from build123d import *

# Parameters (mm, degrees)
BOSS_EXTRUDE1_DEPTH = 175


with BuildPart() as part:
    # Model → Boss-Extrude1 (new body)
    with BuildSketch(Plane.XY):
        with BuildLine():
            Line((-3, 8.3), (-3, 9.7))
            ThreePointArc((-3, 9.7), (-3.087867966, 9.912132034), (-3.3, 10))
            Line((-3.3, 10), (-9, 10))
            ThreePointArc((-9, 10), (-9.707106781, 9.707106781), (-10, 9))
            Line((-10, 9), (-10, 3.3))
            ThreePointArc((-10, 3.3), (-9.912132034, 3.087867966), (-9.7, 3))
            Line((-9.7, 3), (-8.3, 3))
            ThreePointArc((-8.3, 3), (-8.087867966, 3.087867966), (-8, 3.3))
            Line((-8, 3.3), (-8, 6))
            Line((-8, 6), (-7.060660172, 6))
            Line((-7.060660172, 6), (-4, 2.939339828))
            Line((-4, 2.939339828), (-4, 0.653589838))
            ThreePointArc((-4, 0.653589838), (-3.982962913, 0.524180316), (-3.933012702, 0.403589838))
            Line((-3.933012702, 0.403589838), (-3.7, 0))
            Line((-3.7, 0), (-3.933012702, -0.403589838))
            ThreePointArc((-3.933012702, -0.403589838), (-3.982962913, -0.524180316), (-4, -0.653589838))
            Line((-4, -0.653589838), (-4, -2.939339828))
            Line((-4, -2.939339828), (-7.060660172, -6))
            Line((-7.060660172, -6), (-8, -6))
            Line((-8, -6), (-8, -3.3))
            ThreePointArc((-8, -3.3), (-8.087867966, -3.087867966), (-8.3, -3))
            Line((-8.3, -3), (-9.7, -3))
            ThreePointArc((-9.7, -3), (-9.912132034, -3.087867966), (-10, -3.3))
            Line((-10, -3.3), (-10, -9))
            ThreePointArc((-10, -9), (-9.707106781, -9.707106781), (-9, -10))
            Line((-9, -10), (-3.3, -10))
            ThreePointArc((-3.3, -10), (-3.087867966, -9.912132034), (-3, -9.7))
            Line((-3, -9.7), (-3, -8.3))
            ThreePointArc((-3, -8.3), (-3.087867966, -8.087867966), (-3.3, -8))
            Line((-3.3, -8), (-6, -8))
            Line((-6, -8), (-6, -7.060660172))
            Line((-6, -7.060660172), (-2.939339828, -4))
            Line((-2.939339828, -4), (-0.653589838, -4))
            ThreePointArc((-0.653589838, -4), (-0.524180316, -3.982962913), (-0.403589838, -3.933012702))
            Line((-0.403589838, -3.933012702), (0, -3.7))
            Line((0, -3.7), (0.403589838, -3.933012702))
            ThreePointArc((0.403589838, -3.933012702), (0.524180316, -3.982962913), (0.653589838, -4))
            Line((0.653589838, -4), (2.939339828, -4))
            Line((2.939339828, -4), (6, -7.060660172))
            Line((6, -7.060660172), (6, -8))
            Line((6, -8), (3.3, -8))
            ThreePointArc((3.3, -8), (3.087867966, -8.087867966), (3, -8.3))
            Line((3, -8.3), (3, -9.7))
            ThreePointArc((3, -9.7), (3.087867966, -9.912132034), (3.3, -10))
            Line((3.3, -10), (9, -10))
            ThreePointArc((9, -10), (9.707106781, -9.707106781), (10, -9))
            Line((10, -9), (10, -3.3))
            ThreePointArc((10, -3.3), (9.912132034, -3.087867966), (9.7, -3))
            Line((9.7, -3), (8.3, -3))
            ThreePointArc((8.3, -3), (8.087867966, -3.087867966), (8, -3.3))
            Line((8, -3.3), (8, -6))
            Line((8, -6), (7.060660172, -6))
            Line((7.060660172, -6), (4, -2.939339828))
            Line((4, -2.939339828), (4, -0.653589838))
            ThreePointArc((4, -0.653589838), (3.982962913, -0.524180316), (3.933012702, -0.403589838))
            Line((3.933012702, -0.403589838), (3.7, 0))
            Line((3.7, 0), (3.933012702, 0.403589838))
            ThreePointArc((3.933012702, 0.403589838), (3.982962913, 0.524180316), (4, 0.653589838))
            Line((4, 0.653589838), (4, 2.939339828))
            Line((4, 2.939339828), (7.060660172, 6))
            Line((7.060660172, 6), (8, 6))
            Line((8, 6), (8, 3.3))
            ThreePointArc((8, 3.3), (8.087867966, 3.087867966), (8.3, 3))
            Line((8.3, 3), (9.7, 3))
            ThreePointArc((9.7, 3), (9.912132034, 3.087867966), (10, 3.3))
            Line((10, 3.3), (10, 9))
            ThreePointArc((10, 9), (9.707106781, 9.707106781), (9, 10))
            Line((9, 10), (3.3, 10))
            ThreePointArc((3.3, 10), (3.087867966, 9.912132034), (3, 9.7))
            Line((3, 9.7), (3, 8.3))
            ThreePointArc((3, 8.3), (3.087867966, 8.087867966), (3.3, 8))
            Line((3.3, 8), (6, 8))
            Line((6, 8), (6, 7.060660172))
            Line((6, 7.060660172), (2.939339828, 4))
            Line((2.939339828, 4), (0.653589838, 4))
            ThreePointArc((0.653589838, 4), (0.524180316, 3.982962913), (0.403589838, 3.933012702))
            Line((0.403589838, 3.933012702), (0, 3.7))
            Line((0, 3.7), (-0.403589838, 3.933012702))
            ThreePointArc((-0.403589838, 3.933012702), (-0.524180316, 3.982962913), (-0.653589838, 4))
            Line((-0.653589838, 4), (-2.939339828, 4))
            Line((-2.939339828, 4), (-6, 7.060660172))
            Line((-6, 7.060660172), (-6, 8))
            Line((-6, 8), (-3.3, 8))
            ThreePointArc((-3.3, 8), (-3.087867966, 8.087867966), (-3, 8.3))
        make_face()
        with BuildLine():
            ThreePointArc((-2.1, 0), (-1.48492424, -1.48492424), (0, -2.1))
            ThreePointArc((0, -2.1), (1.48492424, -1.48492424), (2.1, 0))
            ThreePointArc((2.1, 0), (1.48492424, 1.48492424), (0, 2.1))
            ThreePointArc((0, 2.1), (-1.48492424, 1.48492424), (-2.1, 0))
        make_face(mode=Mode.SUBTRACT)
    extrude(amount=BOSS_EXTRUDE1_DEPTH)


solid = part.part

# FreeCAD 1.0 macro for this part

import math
import FreeCAD as App
import Part
import Sketcher
Q = App.Units.Quantity

doc = App.newDocument("Part")
params = doc.addObject("Spreadsheet::Sheet", "Params")
for row, (alias, value) in enumerate([
    ("sketch1_radius", "1 mm"),
    ("sketch1_radius2", "0.3 mm"),
    ("sketch1_radius3", "0.5 mm"),
    ("sketch1_radius4", "2.1 mm"),
    ("sketch1_width", "5.7 mm"),
    ("pad1_length", "175 mm"),
], start=1):
    params.set(f"A{row}", alias)
    params.set(f"B{row}", "=" + value)
    params.setAlias(f"B{row}", alias)

body = doc.addObject("PartDesign::Body", "Body")

# Sketch on XY plane
sketch1 = doc.addObject("Sketcher::SketchObject", "Sketch")
body.addObject(sketch1)
sketch1.AttachmentSupport = (doc.XY_Plane, [""])
sketch1.MapMode = "FlatFace"
sketch1.addGeometry([
    Part.LineSegment(App.Vector(-3, 8.3, 0), App.Vector(-3, 9.7, 0)),  # 0
    Part.ArcOfCircle(Part.Circle(App.Vector(-3.3, 9.7, 0), App.Vector(0, 0, 1), 0.3), math.radians(0), math.radians(90)),  # 1
    Part.LineSegment(App.Vector(-3.3, 10, 0), App.Vector(-9, 10, 0)),  # 2
    Part.ArcOfCircle(Part.Circle(App.Vector(-9, 9, 0), App.Vector(0, 0, 1), 1), math.radians(90), math.radians(180)),  # 3
    Part.LineSegment(App.Vector(-10, 9, 0), App.Vector(-10, 3.3, 0)),  # 4
    Part.ArcOfCircle(Part.Circle(App.Vector(-9.7, 3.3, 0), App.Vector(0, 0, 1), 0.3), math.radians(-180), math.radians(-90)),  # 5
    Part.LineSegment(App.Vector(-9.7, 3, 0), App.Vector(-8.3, 3, 0)),  # 6
    Part.ArcOfCircle(Part.Circle(App.Vector(-8.3, 3.3, 0), App.Vector(0, 0, 1), 0.3), math.radians(-90), math.radians(0)),  # 7
    Part.LineSegment(App.Vector(-8, 3.3, 0), App.Vector(-8, 6, 0)),  # 8
    Part.LineSegment(App.Vector(-8, 6, 0), App.Vector(-7.06, 6, 0)),  # 9
    Part.LineSegment(App.Vector(-7.06, 6, 0), App.Vector(-4, 2.94, 0)),  # 10
    Part.LineSegment(App.Vector(-4, 2.94, 0), App.Vector(-4, 0.65, 0)),  # 11
    Part.ArcOfCircle(Part.Circle(App.Vector(-3.5, 0.65, 0), App.Vector(0, 0, 1), 0.5), math.radians(-180), math.radians(-150)),  # 12
    Part.LineSegment(App.Vector(-3.93, 0.4, 0), App.Vector(-3.7, 0, 0)),  # 13
    Part.LineSegment(App.Vector(-3.7, 0, 0), App.Vector(-3.93, -0.4, 0)),  # 14
    Part.ArcOfCircle(Part.Circle(App.Vector(-3.5, -0.65, 0), App.Vector(0, 0, 1), 0.5), math.radians(150), math.radians(180)),  # 15
    Part.LineSegment(App.Vector(-4, -0.65, 0), App.Vector(-4, -2.94, 0)),  # 16
    Part.LineSegment(App.Vector(-4, -2.94, 0), App.Vector(-7.06, -6, 0)),  # 17
    Part.LineSegment(App.Vector(-7.06, -6, 0), App.Vector(-8, -6, 0)),  # 18
    Part.LineSegment(App.Vector(-8, -6, 0), App.Vector(-8, -3.3, 0)),  # 19
    Part.ArcOfCircle(Part.Circle(App.Vector(-8.3, -3.3, 0), App.Vector(0, 0, 1), 0.3), math.radians(0), math.radians(90)),  # 20
    Part.LineSegment(App.Vector(-8.3, -3, 0), App.Vector(-9.7, -3, 0)),  # 21
    Part.ArcOfCircle(Part.Circle(App.Vector(-9.7, -3.3, 0), App.Vector(0, 0, 1), 0.3), math.radians(90), math.radians(180)),  # 22
    Part.LineSegment(App.Vector(-10, -3.3, 0), App.Vector(-10, -9, 0)),  # 23
    Part.ArcOfCircle(Part.Circle(App.Vector(-9, -9, 0), App.Vector(0, 0, 1), 1), math.radians(-180), math.radians(-90)),  # 24
    Part.LineSegment(App.Vector(-9, -10, 0), App.Vector(-3.3, -10, 0)),  # 25
    Part.ArcOfCircle(Part.Circle(App.Vector(-3.3, -9.7, 0), App.Vector(0, 0, 1), 0.3), math.radians(-90), math.radians(0)),  # 26
    Part.LineSegment(App.Vector(-3, -9.7, 0), App.Vector(-3, -8.3, 0)),  # 27
    Part.ArcOfCircle(Part.Circle(App.Vector(-3.3, -8.3, 0), App.Vector(0, 0, 1), 0.3), math.radians(0), math.radians(90)),  # 28
    Part.LineSegment(App.Vector(-3.3, -8, 0), App.Vector(-6, -8, 0)),  # 29
    Part.LineSegment(App.Vector(-6, -8, 0), App.Vector(-6, -7.06, 0)),  # 30
    Part.LineSegment(App.Vector(-6, -7.06, 0), App.Vector(-2.94, -4, 0)),  # 31
    Part.LineSegment(App.Vector(-2.94, -4, 0), App.Vector(-0.65, -4, 0)),  # 32
    Part.ArcOfCircle(Part.Circle(App.Vector(-0.65, -3.5, 0), App.Vector(0, 0, 1), 0.5), math.radians(-90), math.radians(-60)),  # 33
    Part.LineSegment(App.Vector(-0.4, -3.93, 0), App.Vector(0, -3.7, 0)),  # 34
    Part.LineSegment(App.Vector(0, -3.7, 0), App.Vector(0.4, -3.93, 0)),  # 35
    Part.ArcOfCircle(Part.Circle(App.Vector(0.65, -3.5, 0), App.Vector(0, 0, 1), 0.5), math.radians(-120), math.radians(-90)),  # 36
    Part.LineSegment(App.Vector(0.65, -4, 0), App.Vector(2.94, -4, 0)),  # 37
    Part.LineSegment(App.Vector(2.94, -4, 0), App.Vector(6, -7.06, 0)),  # 38
    Part.LineSegment(App.Vector(6, -7.06, 0), App.Vector(6, -8, 0)),  # 39
    Part.LineSegment(App.Vector(6, -8, 0), App.Vector(3.3, -8, 0)),  # 40
    Part.ArcOfCircle(Part.Circle(App.Vector(3.3, -8.3, 0), App.Vector(0, 0, 1), 0.3), math.radians(90), math.radians(180)),  # 41
    Part.LineSegment(App.Vector(3, -8.3, 0), App.Vector(3, -9.7, 0)),  # 42
    Part.ArcOfCircle(Part.Circle(App.Vector(3.3, -9.7, 0), App.Vector(0, 0, 1), 0.3), math.radians(-180), math.radians(-90)),  # 43
    Part.LineSegment(App.Vector(3.3, -10, 0), App.Vector(9, -10, 0)),  # 44
    Part.ArcOfCircle(Part.Circle(App.Vector(9, -9, 0), App.Vector(0, 0, 1), 1), math.radians(-90), math.radians(0)),  # 45
    Part.LineSegment(App.Vector(10, -9, 0), App.Vector(10, -3.3, 0)),  # 46
    Part.ArcOfCircle(Part.Circle(App.Vector(9.7, -3.3, 0), App.Vector(0, 0, 1), 0.3), math.radians(0), math.radians(90)),  # 47
    Part.LineSegment(App.Vector(9.7, -3, 0), App.Vector(8.3, -3, 0)),  # 48
    Part.ArcOfCircle(Part.Circle(App.Vector(8.3, -3.3, 0), App.Vector(0, 0, 1), 0.3), math.radians(90), math.radians(180)),  # 49
    Part.LineSegment(App.Vector(8, -3.3, 0), App.Vector(8, -6, 0)),  # 50
    Part.LineSegment(App.Vector(8, -6, 0), App.Vector(7.06, -6, 0)),  # 51
    Part.LineSegment(App.Vector(7.06, -6, 0), App.Vector(4, -2.94, 0)),  # 52
    Part.LineSegment(App.Vector(4, -2.94, 0), App.Vector(4, -0.65, 0)),  # 53
    Part.ArcOfCircle(Part.Circle(App.Vector(3.5, -0.65, 0), App.Vector(0, 0, 1), 0.5), math.radians(0), math.radians(30)),  # 54
    Part.LineSegment(App.Vector(3.93, -0.4, 0), App.Vector(3.7, 0, 0)),  # 55
    Part.LineSegment(App.Vector(3.7, 0, 0), App.Vector(3.93, 0.4, 0)),  # 56
    Part.ArcOfCircle(Part.Circle(App.Vector(3.5, 0.65, 0), App.Vector(0, 0, 1), 0.5), math.radians(-30), math.radians(0)),  # 57
    Part.LineSegment(App.Vector(4, 0.65, 0), App.Vector(4, 2.94, 0)),  # 58
    Part.LineSegment(App.Vector(4, 2.94, 0), App.Vector(7.06, 6, 0)),  # 59
    Part.LineSegment(App.Vector(7.06, 6, 0), App.Vector(8, 6, 0)),  # 60
    Part.LineSegment(App.Vector(8, 6, 0), App.Vector(8, 3.3, 0)),  # 61
    Part.ArcOfCircle(Part.Circle(App.Vector(8.3, 3.3, 0), App.Vector(0, 0, 1), 0.3), math.radians(-180), math.radians(-90)),  # 62
    Part.LineSegment(App.Vector(8.3, 3, 0), App.Vector(9.7, 3, 0)),  # 63
    Part.ArcOfCircle(Part.Circle(App.Vector(9.7, 3.3, 0), App.Vector(0, 0, 1), 0.3), math.radians(-90), math.radians(0)),  # 64
    Part.LineSegment(App.Vector(10, 3.3, 0), App.Vector(10, 9, 0)),  # 65
    Part.ArcOfCircle(Part.Circle(App.Vector(9, 9, 0), App.Vector(0, 0, 1), 1), math.radians(0), math.radians(90)),  # 66
    Part.LineSegment(App.Vector(9, 10, 0), App.Vector(3.3, 10, 0)),  # 67
    Part.ArcOfCircle(Part.Circle(App.Vector(3.3, 9.7, 0), App.Vector(0, 0, 1), 0.3), math.radians(90), math.radians(180)),  # 68
    Part.LineSegment(App.Vector(3, 9.7, 0), App.Vector(3, 8.3, 0)),  # 69
    Part.ArcOfCircle(Part.Circle(App.Vector(3.3, 8.3, 0), App.Vector(0, 0, 1), 0.3), math.radians(-180), math.radians(-90)),  # 70
    Part.LineSegment(App.Vector(3.3, 8, 0), App.Vector(6, 8, 0)),  # 71
    Part.LineSegment(App.Vector(6, 8, 0), App.Vector(6, 7.06, 0)),  # 72
    Part.LineSegment(App.Vector(6, 7.06, 0), App.Vector(2.94, 4, 0)),  # 73
    Part.LineSegment(App.Vector(2.94, 4, 0), App.Vector(0.65, 4, 0)),  # 74
    Part.ArcOfCircle(Part.Circle(App.Vector(0.65, 3.5, 0), App.Vector(0, 0, 1), 0.5), math.radians(90), math.radians(120)),  # 75
    Part.LineSegment(App.Vector(0.4, 3.93, 0), App.Vector(0, 3.7, 0)),  # 76
    Part.LineSegment(App.Vector(0, 3.7, 0), App.Vector(-0.4, 3.93, 0)),  # 77
    Part.ArcOfCircle(Part.Circle(App.Vector(-0.65, 3.5, 0), App.Vector(0, 0, 1), 0.5), math.radians(60), math.radians(90)),  # 78
    Part.LineSegment(App.Vector(-0.65, 4, 0), App.Vector(-2.94, 4, 0)),  # 79
    Part.LineSegment(App.Vector(-2.94, 4, 0), App.Vector(-6, 7.06, 0)),  # 80
    Part.LineSegment(App.Vector(-6, 7.06, 0), App.Vector(-6, 8, 0)),  # 81
    Part.LineSegment(App.Vector(-6, 8, 0), App.Vector(-3.3, 8, 0)),  # 82
    Part.ArcOfCircle(Part.Circle(App.Vector(-3.3, 8.3, 0), App.Vector(0, 0, 1), 0.3), math.radians(-90), math.radians(0)),  # 83
    Part.ArcOfCircle(Part.Circle(App.Vector(0, 0, 0), App.Vector(0, 0, 1), 2.1), math.radians(-180), math.radians(-90)),  # 84
    Part.ArcOfCircle(Part.Circle(App.Vector(0, 0, 0), App.Vector(0, 0, 1), 2.1), math.radians(90), math.radians(180)),  # 85
    Part.ArcOfCircle(Part.Circle(App.Vector(0, 0, 0), App.Vector(0, 0, 1), 2.1), math.radians(0), math.radians(90)),  # 86
    Part.ArcOfCircle(Part.Circle(App.Vector(0, 0, 0), App.Vector(0, 0, 1), 2.1), math.radians(-90), math.radians(0)),  # 87
], False)
sketch1.addConstraint([
    Sketcher.Constraint("Tangent", 0, 2, 1, 1),
    Sketcher.Constraint("Tangent", 1, 2, 2, 1),
    Sketcher.Constraint("Tangent", 2, 2, 3, 1),
    Sketcher.Constraint("Tangent", 3, 2, 4, 1),
    Sketcher.Constraint("Tangent", 4, 2, 5, 1),
    Sketcher.Constraint("Tangent", 5, 2, 6, 1),
    Sketcher.Constraint("Tangent", 6, 2, 7, 1),
    Sketcher.Constraint("Tangent", 7, 2, 8, 1),
    Sketcher.Constraint("Coincident", 8, 2, 9, 1),
    Sketcher.Constraint("Coincident", 9, 2, 10, 1),
    Sketcher.Constraint("Coincident", 10, 2, 11, 1),
    Sketcher.Constraint("Tangent", 11, 2, 12, 1),
    Sketcher.Constraint("Tangent", 12, 2, 13, 1),
    Sketcher.Constraint("Coincident", 13, 2, 14, 1),
    Sketcher.Constraint("Tangent", 14, 2, 15, 1),
    Sketcher.Constraint("Tangent", 15, 2, 16, 1),
    Sketcher.Constraint("Coincident", 16, 2, 17, 1),
    Sketcher.Constraint("Coincident", 17, 2, 18, 1),
    Sketcher.Constraint("Coincident", 18, 2, 19, 1),
    Sketcher.Constraint("Tangent", 19, 2, 20, 1),
    Sketcher.Constraint("Tangent", 20, 2, 21, 1),
    Sketcher.Constraint("Tangent", 21, 2, 22, 1),
    Sketcher.Constraint("Tangent", 22, 2, 23, 1),
    Sketcher.Constraint("Tangent", 23, 2, 24, 1),
    Sketcher.Constraint("Tangent", 24, 2, 25, 1),
    Sketcher.Constraint("Tangent", 25, 2, 26, 1),
    Sketcher.Constraint("Tangent", 26, 2, 27, 1),
    Sketcher.Constraint("Tangent", 27, 2, 28, 1),
    Sketcher.Constraint("Tangent", 28, 2, 29, 1),
    Sketcher.Constraint("Coincident", 29, 2, 30, 1),
    Sketcher.Constraint("Coincident", 30, 2, 31, 1),
    Sketcher.Constraint("Coincident", 31, 2, 32, 1),
    Sketcher.Constraint("Tangent", 32, 2, 33, 1),
    Sketcher.Constraint("Tangent", 33, 2, 34, 1),
    Sketcher.Constraint("Coincident", 34, 2, 35, 1),
    Sketcher.Constraint("Tangent", 35, 2, 36, 1),
    Sketcher.Constraint("Tangent", 36, 2, 37, 1),
    Sketcher.Constraint("Coincident", 37, 2, 38, 1),
    Sketcher.Constraint("Coincident", 38, 2, 39, 1),
    Sketcher.Constraint("Coincident", 39, 2, 40, 1),
    Sketcher.Constraint("Tangent", 40, 2, 41, 1),
    Sketcher.Constraint("Tangent", 41, 2, 42, 1),
    Sketcher.Constraint("Tangent", 42, 2, 43, 1),
    Sketcher.Constraint("Tangent", 43, 2, 44, 1),
    Sketcher.Constraint("Tangent", 44, 2, 45, 1),
    Sketcher.Constraint("Tangent", 45, 2, 46, 1),
    Sketcher.Constraint("Tangent", 46, 2, 47, 1),
    Sketcher.Constraint("Tangent", 47, 2, 48, 1),
    Sketcher.Constraint("Tangent", 48, 2, 49, 1),
    Sketcher.Constraint("Tangent", 49, 2, 50, 1),
    Sketcher.Constraint("Coincident", 50, 2, 51, 1),
    Sketcher.Constraint("Coincident", 51, 2, 52, 1),
    Sketcher.Constraint("Coincident", 52, 2, 53, 1),
    Sketcher.Constraint("Tangent", 53, 2, 54, 1),
    Sketcher.Constraint("Tangent", 54, 2, 55, 1),
    Sketcher.Constraint("Coincident", 55, 2, 56, 1),
    Sketcher.Constraint("Tangent", 56, 2, 57, 1),
    Sketcher.Constraint("Tangent", 57, 2, 58, 1),
    Sketcher.Constraint("Coincident", 58, 2, 59, 1),
    Sketcher.Constraint("Coincident", 59, 2, 60, 1),
    Sketcher.Constraint("Coincident", 60, 2, 61, 1),
    Sketcher.Constraint("Tangent", 61, 2, 62, 1),
    Sketcher.Constraint("Tangent", 62, 2, 63, 1),
    Sketcher.Constraint("Tangent", 63, 2, 64, 1),
    Sketcher.Constraint("Tangent", 64, 2, 65, 1),
    Sketcher.Constraint("Tangent", 65, 2, 66, 1),
    Sketcher.Constraint("Tangent", 66, 2, 67, 1),
    Sketcher.Constraint("Tangent", 67, 2, 68, 1),
    Sketcher.Constraint("Tangent", 68, 2, 69, 1),
    Sketcher.Constraint("Tangent", 69, 2, 70, 1),
    Sketcher.Constraint("Tangent", 70, 2, 71, 1),
    Sketcher.Constraint("Coincident", 71, 2, 72, 1),
    Sketcher.Constraint("Coincident", 72, 2, 73, 1),
    Sketcher.Constraint("Coincident", 73, 2, 74, 1),
    Sketcher.Constraint("Tangent", 74, 2, 75, 1),
    Sketcher.Constraint("Tangent", 75, 2, 76, 1),
    Sketcher.Constraint("Coincident", 76, 2, 77, 1),
    Sketcher.Constraint("Tangent", 77, 2, 78, 1),
    Sketcher.Constraint("Tangent", 78, 2, 79, 1),
    Sketcher.Constraint("Coincident", 79, 2, 80, 1),
    Sketcher.Constraint("Coincident", 80, 2, 81, 1),
    Sketcher.Constraint("Coincident", 81, 2, 82, 1),
    Sketcher.Constraint("Tangent", 82, 2, 83, 1),
    Sketcher.Constraint("Tangent", 83, 2, 0, 1),
    Sketcher.Constraint("Tangent", 84, 1, 85, 2),
    Sketcher.Constraint("Tangent", 85, 1, 86, 2),
    Sketcher.Constraint("Tangent", 86, 1, 87, 2),
    Sketcher.Constraint("Tangent", 87, 1, 84, 2),
    Sketcher.Constraint("Vertical", 0),
    Sketcher.Constraint("Horizontal", 2),
    Sketcher.Constraint("Vertical", 4),
    Sketcher.Constraint("Horizontal", 6),
    Sketcher.Constraint("Vertical", 8),
    Sketcher.Constraint("Horizontal", 9),
    Sketcher.Constraint("Vertical", 11),
    Sketcher.Constraint("Vertical", 16),
    Sketcher.Constraint("Horizontal", 18),
    Sketcher.Constraint("Vertical", 19),
    Sketcher.Constraint("Horizontal", 21),
    Sketcher.Constraint("Vertical", 23),
    Sketcher.Constraint("Horizontal", 25),
    Sketcher.Constraint("Vertical", 27),
    Sketcher.Constraint("Horizontal", 29),
    Sketcher.Constraint("Vertical", 30),
    Sketcher.Constraint("Horizontal", 32),
    Sketcher.Constraint("Horizontal", 37),
    Sketcher.Constraint("Vertical", 39),
    Sketcher.Constraint("Horizontal", 40),
    Sketcher.Constraint("Vertical", 42),
    Sketcher.Constraint("Horizontal", 44),
    Sketcher.Constraint("Vertical", 46),
    Sketcher.Constraint("Horizontal", 48),
    Sketcher.Constraint("Vertical", 50),
    Sketcher.Constraint("Horizontal", 51),
    Sketcher.Constraint("Vertical", 53),
    Sketcher.Constraint("Vertical", 58),
    Sketcher.Constraint("Horizontal", 60),
    Sketcher.Constraint("Vertical", 61),
    Sketcher.Constraint("Horizontal", 63),
    Sketcher.Constraint("Vertical", 65),
    Sketcher.Constraint("Horizontal", 67),
    Sketcher.Constraint("Vertical", 69),
    Sketcher.Constraint("Horizontal", 71),
    Sketcher.Constraint("Vertical", 72),
    Sketcher.Constraint("Horizontal", 74),
    Sketcher.Constraint("Horizontal", 79),
    Sketcher.Constraint("Vertical", 81),
    Sketcher.Constraint("Horizontal", 82),
    Sketcher.Constraint("Coincident", 84, 3, -1, 1),
    Sketcher.Constraint("Equal", 1, 5),
    Sketcher.Constraint("Equal", 5, 7),
    Sketcher.Constraint("Equal", 12, 15),
    Sketcher.Constraint("Equal", 7, 20),
    Sketcher.Constraint("Equal", 20, 22),
    Sketcher.Constraint("Equal", 3, 24),
    Sketcher.Constraint("Equal", 22, 26),
    Sketcher.Constraint("Equal", 26, 28),
    Sketcher.Constraint("Equal", 15, 33),
    Sketcher.Constraint("Equal", 33, 36),
    Sketcher.Constraint("Equal", 28, 41),
    Sketcher.Constraint("Equal", 41, 43),
    Sketcher.Constraint("Equal", 24, 45),
    Sketcher.Constraint("Equal", 43, 47),
    Sketcher.Constraint("Equal", 47, 49),
    Sketcher.Constraint("Equal", 36, 54),
    Sketcher.Constraint("Equal", 54, 57),
    Sketcher.Constraint("Equal", 49, 62),
    Sketcher.Constraint("Equal", 62, 64),
    Sketcher.Constraint("Equal", 45, 66),
    Sketcher.Constraint("Equal", 64, 68),
    Sketcher.Constraint("Equal", 68, 70),
    Sketcher.Constraint("Equal", 57, 75),
    Sketcher.Constraint("Equal", 75, 78),
    Sketcher.Constraint("Equal", 70, 83),
    Sketcher.Constraint("Equal", 84, 85),
    Sketcher.Constraint("Symmetric", 1, 3, 43, 3, -1, 1),
    Sketcher.Constraint("Symmetric", 5, 3, 47, 3, -1, 1),
    Sketcher.Constraint("Symmetric", 12, 3, 54, 3, -1, 1),
    Sketcher.Constraint("Symmetric", 15, 3, 57, 3, -1, 1),
    Sketcher.Constraint("Symmetric", 20, 3, 62, 3, -1, 1),
    Sketcher.Constraint("Symmetric", 24, 3, 66, 3, -1, 1),
    Sketcher.Constraint("Symmetric", 28, 3, 70, 3, -1, 1),
    Sketcher.Constraint("Symmetric", 33, 3, 75, 3, -1, 1),
    Sketcher.Constraint("Symmetric", 36, 3, 78, 3, -1, 1),
    Sketcher.Constraint("Symmetric", 8, 2, 50, 2, -1, 1),
    Sketcher.Constraint("Symmetric", 13, 2, 55, 2, -1, 1),
    Sketcher.Constraint("Symmetric", 17, 2, 59, 2, -1, 1),
    Sketcher.Constraint("Symmetric", 30, 2, 72, 2, -1, 1),
    Sketcher.Constraint("Symmetric", 34, 2, 76, 2, -1, 1),
    Sketcher.Constraint("Symmetric", 38, 2, 80, 2, -1, 1),
    Sketcher.Constraint("Symmetric", 33, 3, 36, 3, -2),
    Sketcher.Constraint("Symmetric", 28, 3, 41, 3, -2),
    Sketcher.Constraint("Symmetric", 24, 3, 45, 3, -2),
    Sketcher.Constraint("Symmetric", 20, 3, 49, 3, -2),
    Sketcher.Constraint("Symmetric", 15, 3, 54, 3, -2),
    Sketcher.Constraint("Symmetric", 30, 2, 38, 2, -2),
    Sketcher.Constraint("Symmetric", 17, 2, 51, 2, -2),
    Sketcher.Constraint("PointOnObject", 13, 2, -1),
    Sketcher.Constraint("PointOnObject", 34, 2, -2),
    Sketcher.Constraint("PointOnObject", 84, 1, -1),
    Sketcher.Constraint("PointOnObject", 85, 1, -2),
    Sketcher.Constraint("PointOnObject", 86, 1, -1),
    Sketcher.Constraint("PointOnObject", 87, 1, -2),
    Sketcher.Constraint("Perpendicular", 10, 17),
    Sketcher.Constraint("Parallel", 17, 31),
    Sketcher.Constraint("Perpendicular", 13, 34),
    Sketcher.Constraint("Perpendicular", 31, 38),
    Sketcher.Constraint("Parallel", 38, 52),
    Sketcher.Constraint("Perpendicular", 52, 59),
    Sketcher.Constraint("Parallel", 59, 73),
    Sketcher.Constraint("Perpendicular", 73, 80),
    Sketcher.Constraint("Horizontal", 70, 3, 83, 3),
    Sketcher.Constraint("Horizontal", 16, 2, 52, 2),
    Sketcher.Constraint("Horizontal", 10, 2, 58, 2),
    Sketcher.Constraint("Equal", 63, 0),
    Sketcher.Constraint("Equal", 67, 4),
    Sketcher.Constraint("Equal", 82, 8),
    Sketcher.Constraint("Equal", 79, 11),
    Sketcher.Constraint("Equal", 60, 30),
    Sketcher.Constraint("Equal", 17, 31),
    Sketcher.Constraint("Equal", 14, 34),
    Sketcher.Constraint("Radius", 3, 1.0),
    Sketcher.Constraint("Radius", 1, 0.3),
    Sketcher.Constraint("Radius", 12, 0.5),
    Sketcher.Constraint("Radius", 84, 2.1),
    Sketcher.Constraint("Angle", 13, Q("-60 deg")),
    Sketcher.Constraint("DistanceX", 2, 2, 2, 1, 5.7),
    Sketcher.Constraint("DistanceX", 6, 1, 6, 2, 1.4),
    Sketcher.Constraint("DistanceX", 29, 2, 29, 1, 2.7),
    Sketcher.Constraint("DistanceX", 3, 3, -1, 1, 9.0),
    Sketcher.Constraint("DistanceX", 10, 2, -1, 1, 4.0),
    Sketcher.Constraint("DistanceX", 13, 2, -1, 1, 3.7),
    Sketcher.Constraint("DistanceX", 9, 1, 9, 2, 0.93934),
])
sketch1.setExpression("Constraints[201]", "Params.sketch1_radius")
sketch1.setExpression("Constraints[202]", "Params.sketch1_radius2")
sketch1.setExpression("Constraints[203]", "Params.sketch1_radius3")
sketch1.setExpression("Constraints[204]", "Params.sketch1_radius4")
sketch1.setExpression("Constraints[206]", "Params.sketch1_width")
pad1 = doc.addObject("PartDesign::Pad", "Pad")
body.addObject(pad1)
pad1.Profile = sketch1
pad1.setExpression("Length", "Params.pad1_length")

doc.recompute()
